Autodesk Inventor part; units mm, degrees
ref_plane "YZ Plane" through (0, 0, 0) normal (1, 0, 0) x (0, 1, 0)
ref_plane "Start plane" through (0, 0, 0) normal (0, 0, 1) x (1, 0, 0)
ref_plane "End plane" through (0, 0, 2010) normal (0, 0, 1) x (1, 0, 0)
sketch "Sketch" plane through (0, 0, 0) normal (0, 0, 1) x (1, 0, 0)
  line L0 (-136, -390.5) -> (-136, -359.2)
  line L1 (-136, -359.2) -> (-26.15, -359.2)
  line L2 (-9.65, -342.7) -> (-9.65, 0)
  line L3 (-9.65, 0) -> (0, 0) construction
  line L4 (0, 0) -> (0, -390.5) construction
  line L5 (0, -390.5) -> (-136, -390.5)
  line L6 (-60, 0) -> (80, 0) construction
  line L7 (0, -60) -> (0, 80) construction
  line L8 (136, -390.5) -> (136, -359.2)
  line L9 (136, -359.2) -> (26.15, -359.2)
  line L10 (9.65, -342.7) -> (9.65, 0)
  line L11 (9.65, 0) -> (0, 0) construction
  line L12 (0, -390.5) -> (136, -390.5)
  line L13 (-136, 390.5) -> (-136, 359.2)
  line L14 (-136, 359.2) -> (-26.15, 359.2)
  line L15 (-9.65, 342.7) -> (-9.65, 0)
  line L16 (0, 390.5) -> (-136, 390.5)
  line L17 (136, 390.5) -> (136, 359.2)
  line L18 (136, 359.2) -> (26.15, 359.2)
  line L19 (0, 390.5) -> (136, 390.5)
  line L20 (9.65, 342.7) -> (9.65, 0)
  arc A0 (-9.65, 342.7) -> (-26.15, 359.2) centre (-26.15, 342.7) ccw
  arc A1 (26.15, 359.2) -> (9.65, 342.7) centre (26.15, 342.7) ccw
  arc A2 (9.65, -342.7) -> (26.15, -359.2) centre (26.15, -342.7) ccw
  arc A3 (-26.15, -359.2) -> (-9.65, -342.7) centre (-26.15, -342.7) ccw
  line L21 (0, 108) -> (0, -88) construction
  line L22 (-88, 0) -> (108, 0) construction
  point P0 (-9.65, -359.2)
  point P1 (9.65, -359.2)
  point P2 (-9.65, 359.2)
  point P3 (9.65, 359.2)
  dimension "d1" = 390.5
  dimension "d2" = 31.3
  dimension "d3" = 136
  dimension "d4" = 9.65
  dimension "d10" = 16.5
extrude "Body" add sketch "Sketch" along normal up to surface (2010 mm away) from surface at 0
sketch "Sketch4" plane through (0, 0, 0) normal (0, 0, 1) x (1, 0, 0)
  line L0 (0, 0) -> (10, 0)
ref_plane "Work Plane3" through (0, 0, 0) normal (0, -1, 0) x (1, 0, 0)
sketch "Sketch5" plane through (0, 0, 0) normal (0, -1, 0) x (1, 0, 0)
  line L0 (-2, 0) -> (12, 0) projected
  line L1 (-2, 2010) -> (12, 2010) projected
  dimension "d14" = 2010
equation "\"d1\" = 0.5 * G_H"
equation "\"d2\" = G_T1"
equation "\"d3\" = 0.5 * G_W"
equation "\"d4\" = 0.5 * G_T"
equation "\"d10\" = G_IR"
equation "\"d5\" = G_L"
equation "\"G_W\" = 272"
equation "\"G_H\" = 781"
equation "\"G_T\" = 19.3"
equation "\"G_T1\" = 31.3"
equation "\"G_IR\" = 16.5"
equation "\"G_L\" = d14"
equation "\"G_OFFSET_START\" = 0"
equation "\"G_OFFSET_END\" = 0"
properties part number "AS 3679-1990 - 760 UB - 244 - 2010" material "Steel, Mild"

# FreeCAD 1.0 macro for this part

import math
import FreeCAD as App
import Part
import Sketcher
from FreeCAD import Vector
Q = App.Units.Quantity

doc = App.newDocument("Part")
body = doc.addObject("PartDesign::Body", "Body")

# Sketch on XY plane
sketch1 = doc.addObject("Sketcher::SketchObject", "Sketch")
body.addObject(sketch1)
sketch1.AttachmentSupport = (doc.XY_Plane, [""])
sketch1.MapMode = "FlatFace"
sketch1.addGeometry([
    Part.LineSegment(Vector(-136, -359.2, 0), Vector(-136, -390.5, 0)),  # 0
    Part.LineSegment(Vector(-136, -390.5, 0), Vector(136, -390.5, 0)),  # 1
    Part.LineSegment(Vector(136, -390.5, 0), Vector(136, -359.2, 0)),  # 2
    Part.LineSegment(Vector(136, -359.2, 0), Vector(26.15, -359.2, 0)),  # 3
    Part.ArcOfCircle(Part.Circle(Vector(26.15, -342.7, 0), Vector(0, 0, 1), 16.5), math.radians(180), math.radians(270)),  # 4
    Part.LineSegment(Vector(9.65, -342.7, 0), Vector(9.65, 342.7, 0)),  # 5
    Part.ArcOfCircle(Part.Circle(Vector(26.15, 342.7, 0), Vector(0, 0, 1), 16.5), math.radians(90), math.radians(180)),  # 6
    Part.LineSegment(Vector(26.15, 359.2, 0), Vector(136, 359.2, 0)),  # 7
    Part.LineSegment(Vector(136, 359.2, 0), Vector(136, 390.5, 0)),  # 8
    Part.LineSegment(Vector(136, 390.5, 0), Vector(-136, 390.5, 0)),  # 9
    Part.LineSegment(Vector(-136, 390.5, 0), Vector(-136, 359.2, 0)),  # 10
    Part.LineSegment(Vector(-136, 359.2, 0), Vector(-26.15, 359.2, 0)),  # 11
    Part.ArcOfCircle(Part.Circle(Vector(-26.15, 342.7, 0), Vector(0, 0, 1), 16.5), math.radians(0), math.radians(90)),  # 12
    Part.LineSegment(Vector(-9.65, 342.7, 0), Vector(-9.65, -342.7, 0)),  # 13
    Part.ArcOfCircle(Part.Circle(Vector(-26.15, -342.7, 0), Vector(0, 0, 1), 16.5), math.radians(-90), math.radians(0)),  # 14
    Part.LineSegment(Vector(-26.15, -359.2, 0), Vector(-136, -359.2, 0)),  # 15
], False)
sketch1.addConstraint([
    Sketcher.Constraint("Coincident", 0, 2, 1, 1),
    Sketcher.Constraint("Coincident", 1, 2, 2, 1),
    Sketcher.Constraint("Coincident", 2, 2, 3, 1),
    Sketcher.Constraint("Tangent", 3, 2, 4, 2),
    Sketcher.Constraint("Tangent", 4, 1, 5, 1),
    Sketcher.Constraint("Tangent", 5, 2, 6, 2),
    Sketcher.Constraint("Tangent", 6, 1, 7, 1),
    Sketcher.Constraint("Coincident", 7, 2, 8, 1),
    Sketcher.Constraint("Coincident", 8, 2, 9, 1),
    Sketcher.Constraint("Coincident", 9, 2, 10, 1),
    Sketcher.Constraint("Coincident", 10, 2, 11, 1),
    Sketcher.Constraint("Tangent", 11, 2, 12, 2),
    Sketcher.Constraint("Tangent", 12, 1, 13, 1),
    Sketcher.Constraint("Tangent", 13, 2, 14, 2),
    Sketcher.Constraint("Tangent", 14, 1, 15, 1),
    Sketcher.Constraint("Coincident", 15, 2, 0, 1),
    Sketcher.Constraint("Vertical", 0),
    Sketcher.Constraint("Horizontal", 1),
    Sketcher.Constraint("Vertical", 2),
    Sketcher.Constraint("Horizontal", 3),
    Sketcher.Constraint("Vertical", 5),
    Sketcher.Constraint("Horizontal", 7),
    Sketcher.Constraint("Vertical", 8),
    Sketcher.Constraint("Horizontal", 9),
    Sketcher.Constraint("Vertical", 10),
    Sketcher.Constraint("Horizontal", 11),
    Sketcher.Constraint("Vertical", 13),
    Sketcher.Constraint("Horizontal", 15),
    Sketcher.Constraint("Equal", 4, 6),
    Sketcher.Constraint("Equal", 6, 12),
    Sketcher.Constraint("Equal", 12, 14),
    Sketcher.Constraint("Symmetric", 4, 3, 12, 3, -1, 1),
    Sketcher.Constraint("Symmetric", 0, 2, 8, 2, -1, 1),
    Sketcher.Constraint("Symmetric", 7, 2, 10, 2, -2),
    Sketcher.Constraint("Symmetric", 2, 2, 15, 2, -2),
    Sketcher.Constraint("Radius", 4, Q("16.5 mm")),
    Sketcher.Constraint("DistanceY", 0, 2, 0, 1, Q("31.3 mm")),
    Sketcher.Constraint("DistanceX", 0, 2, -1, 1, Q("136 mm")),
    Sketcher.Constraint("DistanceY", 0, 2, -1, 1, Q("390.5 mm")),
    Sketcher.Constraint("DistanceX", -1, 1, 4, 1, Q("9.65 mm")),
])
pad1 = doc.addObject("PartDesign::Pad", "Pad")
body.addObject(pad1)
pad1.Profile = sketch1
pad1.Length = 2010

doc.recompute()
